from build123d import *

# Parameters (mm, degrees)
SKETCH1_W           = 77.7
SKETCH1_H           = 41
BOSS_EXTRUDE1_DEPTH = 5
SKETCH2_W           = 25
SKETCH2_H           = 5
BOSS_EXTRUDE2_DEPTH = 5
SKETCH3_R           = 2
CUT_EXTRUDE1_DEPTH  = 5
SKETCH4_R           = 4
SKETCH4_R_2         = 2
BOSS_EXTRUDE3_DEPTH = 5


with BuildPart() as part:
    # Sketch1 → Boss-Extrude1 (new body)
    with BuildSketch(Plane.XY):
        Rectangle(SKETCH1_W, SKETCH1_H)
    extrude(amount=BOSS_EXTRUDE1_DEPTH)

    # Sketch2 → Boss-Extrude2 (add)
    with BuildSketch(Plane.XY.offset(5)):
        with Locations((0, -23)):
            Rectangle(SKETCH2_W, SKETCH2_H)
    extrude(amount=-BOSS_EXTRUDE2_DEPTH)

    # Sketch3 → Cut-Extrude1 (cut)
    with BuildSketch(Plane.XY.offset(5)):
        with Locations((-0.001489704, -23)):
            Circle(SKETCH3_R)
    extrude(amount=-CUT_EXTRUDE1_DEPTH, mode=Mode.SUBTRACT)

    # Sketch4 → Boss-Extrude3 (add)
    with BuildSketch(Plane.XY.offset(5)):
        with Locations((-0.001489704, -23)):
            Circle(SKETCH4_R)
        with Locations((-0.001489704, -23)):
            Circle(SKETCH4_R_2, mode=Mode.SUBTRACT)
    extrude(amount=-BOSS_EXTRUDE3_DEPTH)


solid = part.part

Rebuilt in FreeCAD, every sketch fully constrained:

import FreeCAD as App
import Part
import Sketcher

V = App.Vector


def add_polygon(sketch, points):
    """Adds a closed chain of lines whose ends are joined by coincident constraints."""
    first, n = sketch.GeometryCount, len(points)
    for a, b in zip(points, points[1:] + points[:1]):
        sketch.addGeometry(Part.LineSegment(App.Vector(*a, 0), App.Vector(*b, 0)), False)
    for i in range(n):
        sketch.addConstraint(Sketcher.Constraint("Coincident", first + i, 2, first + (i + 1) % n, 1))

doc = App.newDocument("Part")
body = doc.addObject("PartDesign::Body", "Body")

sketch1 = body.newObject("Sketcher::SketchObject", "Sketch")
sketch1.AttachmentSupport = (doc.getObject("XY_Plane"), [""])
sketch1.MapMode = "FlatFace"
add_polygon(sketch1, [(-39, 20), (-39, -20), (39, -20), (39, 20)])
sketch1.addConstraint([
    Sketcher.Constraint("Vertical", 0),
    Sketcher.Constraint("Horizontal", 1),
    Sketcher.Constraint("Vertical", 2),
    Sketcher.Constraint("Horizontal", 3),
    Sketcher.Constraint("Symmetric", 0, 2, 2, 2, -1, 1),
    Sketcher.Constraint("DistanceY", 0, 2, 0, 1, 41.0),
    Sketcher.Constraint("DistanceX", 1, 1, 1, 2, 77.7),
])
pad1 = body.newObject("PartDesign::Pad", "Pad")
pad1.Profile = sketch1
pad1.Length = 5

sketch2 = body.newObject("Sketcher::SketchObject", "Sketch001")
sketch2.AttachmentSupport = (doc.getObject("XY_Plane"), [""])
sketch2.MapMode = "FlatFace"
sketch2.AttachmentOffset = App.Placement(V(0, 0, 5), App.Rotation())
add_polygon(sketch2, [(-12, -20), (-12, -26), (12, -26), (12, -20)])
sketch2.addConstraint([
    Sketcher.Constraint("Vertical", 0),
    Sketcher.Constraint("Horizontal", 1),
    Sketcher.Constraint("Vertical", 2),
    Sketcher.Constraint("Horizontal", 3),
    Sketcher.Constraint("DistanceX", 1, 1, 1, 2, 25.0),
    Sketcher.Constraint("DistanceY", 0, 2, 0, 1, 5.0),
    Sketcher.Constraint("DistanceX", 0, 2, -1, 1, 12.5),
    Sketcher.Constraint("DistanceY", 0, 2, -1, 1, 25.5),
])
pad2 = body.newObject("PartDesign::Pad", "Pad001")
pad2.Profile = sketch2
pad2.Length = 5
pad2.Reversed = True

sketch3 = body.newObject("Sketcher::SketchObject", "Sketch002")
sketch3.AttachmentSupport = (doc.getObject("XY_Plane"), [""])
sketch3.MapMode = "FlatFace"
sketch3.AttachmentOffset = App.Placement(V(0, 0, 5), App.Rotation())
sketch3.addGeometry(Part.Circle(V(0, -23, 0), V(0, 0, 1), 2), False)
sketch3.addConstraint([
    Sketcher.Constraint("Diameter", 0, 4.0),
    Sketcher.Constraint("DistanceY", 0, 3, -1, 1, 23.0),
    Sketcher.Constraint("DistanceX", 0, 3, -1, 1, 0.00149),
])
pocket1 = body.newObject("PartDesign::Pocket", "Pocket")
pocket1.Profile = sketch3
pocket1.Length = 5

sketch4 = body.newObject("Sketcher::SketchObject", "Sketch003")
sketch4.AttachmentSupport = (doc.getObject("XY_Plane"), [""])
sketch4.MapMode = "FlatFace"
sketch4.AttachmentOffset = App.Placement(V(0, 0, 5), App.Rotation())
sketch4.addGeometry([
    Part.Circle(V(0, -23, 0), V(0, 0, 1), 4),
    Part.Circle(V(0, -23, 0), V(0, 0, 1), 2),
], False)
sketch4.addConstraint([
    Sketcher.Constraint("Coincident", 1, 3, 0, 3),
    Sketcher.Constraint("Diameter", 0, 8.0),
    Sketcher.Constraint("Diameter", 1, 4.0),
    Sketcher.Constraint("DistanceY", 0, 3, -1, 1, 23.0),
    Sketcher.Constraint("DistanceX", 0, 3, -1, 1, 0.00149),
])
pad3 = body.newObject("PartDesign::Pad", "Pad002")
pad3.Profile = sketch4
pad3.Length = 5
pad3.Reversed = True

doc.recompute()
